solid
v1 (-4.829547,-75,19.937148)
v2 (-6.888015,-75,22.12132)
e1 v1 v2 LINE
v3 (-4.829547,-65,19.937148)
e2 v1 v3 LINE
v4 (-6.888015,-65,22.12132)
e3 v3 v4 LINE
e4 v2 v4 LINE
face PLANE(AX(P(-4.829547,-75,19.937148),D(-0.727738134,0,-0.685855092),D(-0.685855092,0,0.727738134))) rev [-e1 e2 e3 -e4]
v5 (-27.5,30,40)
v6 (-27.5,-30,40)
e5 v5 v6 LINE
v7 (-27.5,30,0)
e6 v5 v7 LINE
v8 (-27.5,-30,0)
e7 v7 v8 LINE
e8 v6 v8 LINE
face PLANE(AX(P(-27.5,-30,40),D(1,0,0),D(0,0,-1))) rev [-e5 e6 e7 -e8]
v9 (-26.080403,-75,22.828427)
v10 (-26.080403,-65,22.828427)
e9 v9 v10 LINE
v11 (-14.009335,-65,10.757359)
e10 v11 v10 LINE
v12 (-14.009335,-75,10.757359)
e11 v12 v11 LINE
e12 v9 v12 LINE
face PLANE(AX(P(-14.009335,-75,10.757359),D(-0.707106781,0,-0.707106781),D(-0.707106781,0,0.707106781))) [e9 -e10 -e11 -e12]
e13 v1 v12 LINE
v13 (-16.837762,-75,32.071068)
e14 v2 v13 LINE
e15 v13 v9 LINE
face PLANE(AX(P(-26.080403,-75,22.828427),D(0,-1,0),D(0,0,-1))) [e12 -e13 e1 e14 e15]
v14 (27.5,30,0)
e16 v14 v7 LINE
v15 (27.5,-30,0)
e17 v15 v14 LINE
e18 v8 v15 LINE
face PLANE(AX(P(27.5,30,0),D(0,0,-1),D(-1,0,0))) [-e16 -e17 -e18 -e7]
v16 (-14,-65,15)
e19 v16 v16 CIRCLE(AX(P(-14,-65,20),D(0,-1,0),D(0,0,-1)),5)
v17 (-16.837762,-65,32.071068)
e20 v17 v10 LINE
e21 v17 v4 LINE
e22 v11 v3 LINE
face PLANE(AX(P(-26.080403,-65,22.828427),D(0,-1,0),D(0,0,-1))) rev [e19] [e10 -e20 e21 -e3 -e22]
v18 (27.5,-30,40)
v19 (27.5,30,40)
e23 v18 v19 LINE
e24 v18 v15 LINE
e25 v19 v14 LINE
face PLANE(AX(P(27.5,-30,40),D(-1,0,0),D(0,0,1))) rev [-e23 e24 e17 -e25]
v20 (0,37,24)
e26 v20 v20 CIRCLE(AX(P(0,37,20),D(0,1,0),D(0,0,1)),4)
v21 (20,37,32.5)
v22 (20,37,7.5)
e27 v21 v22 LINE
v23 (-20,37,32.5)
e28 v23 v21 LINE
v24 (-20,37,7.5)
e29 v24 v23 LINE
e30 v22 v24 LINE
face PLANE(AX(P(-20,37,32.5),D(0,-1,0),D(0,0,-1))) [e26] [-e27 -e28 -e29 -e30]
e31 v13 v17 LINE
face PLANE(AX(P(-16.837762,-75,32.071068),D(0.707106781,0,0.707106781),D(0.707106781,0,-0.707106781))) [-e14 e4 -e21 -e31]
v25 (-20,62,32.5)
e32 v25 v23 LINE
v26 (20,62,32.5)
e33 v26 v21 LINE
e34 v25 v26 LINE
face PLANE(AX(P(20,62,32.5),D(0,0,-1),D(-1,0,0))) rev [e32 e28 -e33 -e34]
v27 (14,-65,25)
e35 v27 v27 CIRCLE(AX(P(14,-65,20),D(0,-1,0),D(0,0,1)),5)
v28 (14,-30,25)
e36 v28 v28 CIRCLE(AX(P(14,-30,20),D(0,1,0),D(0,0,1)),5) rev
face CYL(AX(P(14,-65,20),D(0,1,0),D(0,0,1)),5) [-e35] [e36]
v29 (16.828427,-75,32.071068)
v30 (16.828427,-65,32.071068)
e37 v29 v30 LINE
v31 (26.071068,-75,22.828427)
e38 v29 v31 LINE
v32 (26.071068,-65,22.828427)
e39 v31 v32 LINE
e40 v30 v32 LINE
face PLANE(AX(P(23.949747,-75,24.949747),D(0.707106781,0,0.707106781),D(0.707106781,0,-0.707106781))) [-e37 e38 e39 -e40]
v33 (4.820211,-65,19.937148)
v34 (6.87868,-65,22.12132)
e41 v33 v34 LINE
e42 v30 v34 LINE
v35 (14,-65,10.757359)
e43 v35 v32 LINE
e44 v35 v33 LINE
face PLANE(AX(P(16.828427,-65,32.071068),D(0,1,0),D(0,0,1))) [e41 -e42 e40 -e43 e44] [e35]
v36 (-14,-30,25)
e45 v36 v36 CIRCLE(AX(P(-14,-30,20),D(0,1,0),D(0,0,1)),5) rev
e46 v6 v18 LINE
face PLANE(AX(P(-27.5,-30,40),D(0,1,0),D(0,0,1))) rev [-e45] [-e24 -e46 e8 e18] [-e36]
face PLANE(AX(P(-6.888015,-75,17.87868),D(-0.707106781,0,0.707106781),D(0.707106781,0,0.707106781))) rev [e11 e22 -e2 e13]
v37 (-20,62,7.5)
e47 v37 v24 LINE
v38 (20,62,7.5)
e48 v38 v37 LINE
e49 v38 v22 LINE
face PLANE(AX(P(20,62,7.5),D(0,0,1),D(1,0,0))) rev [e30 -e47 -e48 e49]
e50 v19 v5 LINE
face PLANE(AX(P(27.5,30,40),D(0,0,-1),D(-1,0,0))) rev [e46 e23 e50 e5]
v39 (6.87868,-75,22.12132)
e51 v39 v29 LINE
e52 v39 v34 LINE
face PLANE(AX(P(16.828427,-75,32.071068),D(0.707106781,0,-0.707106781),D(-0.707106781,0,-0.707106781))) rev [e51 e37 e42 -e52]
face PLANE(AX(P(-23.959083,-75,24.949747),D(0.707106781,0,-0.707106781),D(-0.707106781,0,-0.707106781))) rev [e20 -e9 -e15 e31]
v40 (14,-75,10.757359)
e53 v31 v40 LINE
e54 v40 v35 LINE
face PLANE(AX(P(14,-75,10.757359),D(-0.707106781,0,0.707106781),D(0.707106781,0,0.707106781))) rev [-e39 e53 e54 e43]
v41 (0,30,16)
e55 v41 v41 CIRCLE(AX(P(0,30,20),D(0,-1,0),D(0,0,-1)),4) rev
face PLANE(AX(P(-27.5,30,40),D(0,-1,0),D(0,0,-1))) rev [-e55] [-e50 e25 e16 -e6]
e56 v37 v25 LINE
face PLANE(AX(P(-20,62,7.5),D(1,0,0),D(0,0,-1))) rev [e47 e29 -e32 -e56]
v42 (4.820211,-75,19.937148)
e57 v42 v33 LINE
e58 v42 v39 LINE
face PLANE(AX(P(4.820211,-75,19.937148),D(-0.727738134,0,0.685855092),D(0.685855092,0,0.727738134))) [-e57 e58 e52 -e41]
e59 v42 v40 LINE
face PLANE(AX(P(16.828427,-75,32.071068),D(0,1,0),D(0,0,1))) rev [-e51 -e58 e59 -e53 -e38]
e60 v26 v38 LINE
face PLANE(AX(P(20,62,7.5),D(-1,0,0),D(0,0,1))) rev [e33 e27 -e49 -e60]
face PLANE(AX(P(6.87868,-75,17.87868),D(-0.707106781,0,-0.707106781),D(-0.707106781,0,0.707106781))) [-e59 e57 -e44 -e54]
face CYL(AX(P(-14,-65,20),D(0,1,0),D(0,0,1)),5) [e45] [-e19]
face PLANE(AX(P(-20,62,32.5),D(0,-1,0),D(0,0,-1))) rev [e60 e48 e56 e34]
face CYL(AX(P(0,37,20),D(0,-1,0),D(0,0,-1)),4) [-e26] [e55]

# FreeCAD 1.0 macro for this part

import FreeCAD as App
import Part
import Sketcher

V = App.Vector
Q = App.Units.Quantity

doc = App.newDocument("Part")
body = doc.addObject("PartDesign::Body", "Body")

# Sketch on XY plane
sketch1 = body.newObject("Sketcher::SketchObject", "Sketch")
sketch1.AttachmentSupport = (doc.getObject("XY_Plane"), [""])
sketch1.MapMode = "FlatFace"
sketch1.addGeometry(Part.LineSegment(V(-28, 30, 0), V(-28, -30, 0)), False)
sketch1.addGeometry(Part.LineSegment(V(-28, -30, 0), V(28, -30, 0)), False)
sketch1.addGeometry(Part.LineSegment(V(28, -30, 0), V(28, 30, 0)), False)
sketch1.addGeometry(Part.LineSegment(V(28, 30, 0), V(-28, 30, 0)), False)
sketch1.addConstraint(Sketcher.Constraint("Coincident", 0, 2, 1, 1))
sketch1.addConstraint(Sketcher.Constraint("Coincident", 1, 2, 2, 1))
sketch1.addConstraint(Sketcher.Constraint("Coincident", 2, 2, 3, 1))
sketch1.addConstraint(Sketcher.Constraint("Coincident", 3, 2, 0, 1))
sketch1.addConstraint(Sketcher.Constraint("Vertical", 0))
sketch1.addConstraint(Sketcher.Constraint("Horizontal", 1))
sketch1.addConstraint(Sketcher.Constraint("Vertical", 2))
sketch1.addConstraint(Sketcher.Constraint("Horizontal", 3))
sketch1.addConstraint(Sketcher.Constraint("Symmetric", 0, 2, 2, 2, -1, 1))
sketch1.addConstraint(Sketcher.Constraint("DistanceX", 1, 1, 1, 2, Q("55 mm")))
sketch1.addConstraint(Sketcher.Constraint("DistanceY", 0, 2, 0, 1, Q("60 mm")))
pad1 = body.newObject("PartDesign::Pad", "Pad")
pad1.Profile = sketch1
pad1.Length = 40

# Sketch on XZ plane
sketch2 = body.newObject("Sketcher::SketchObject", "Sketch001")
sketch2.AttachmentSupport = (doc.getObject("XZ_Plane"), [""])
sketch2.MapMode = "FlatFace"
sketch2.AttachmentOffset = App.Placement(V(0, 0, -30), App.Rotation())
sketch2.addGeometry(Part.Circle(V(0, 20, 0), V(0, 0, 1), 4), False)
sketch2.addConstraint(Sketcher.Constraint("PointOnObject", 0, 3, -2))
sketch2.addConstraint(Sketcher.Constraint("Diameter", 0, Q("8 mm")))
sketch2.addConstraint(Sketcher.Constraint("DistanceY", -1, 1, 0, 3, Q("20 mm")))
pad2 = body.newObject("PartDesign::Pad", "Pad001")
pad2.Profile = sketch2
pad2.Length = 7
pad2.Reversed = True

# Sketch on XZ plane
sketch3 = body.newObject("Sketcher::SketchObject", "Sketch002")
sketch3.AttachmentSupport = (doc.getObject("XZ_Plane"), [""])
sketch3.MapMode = "FlatFace"
sketch3.AttachmentOffset = App.Placement(V(0, 0, -37), App.Rotation())
sketch3.addGeometry(Part.LineSegment(V(-20, 8, 0), V(-20, 32, 0)), False)
sketch3.addGeometry(Part.LineSegment(V(-20, 32, 0), V(20, 32, 0)), False)
sketch3.addGeometry(Part.LineSegment(V(20, 32, 0), V(20, 8, 0)), False)
sketch3.addGeometry(Part.LineSegment(V(20, 8, 0), V(-20, 8, 0)), False)
sketch3.addConstraint(Sketcher.Constraint("Coincident", 0, 2, 1, 1))
sketch3.addConstraint(Sketcher.Constraint("Coincident", 1, 2, 2, 1))
sketch3.addConstraint(Sketcher.Constraint("Coincident", 2, 2, 3, 1))
sketch3.addConstraint(Sketcher.Constraint("Coincident", 3, 2, 0, 1))
sketch3.addConstraint(Sketcher.Constraint("Vertical", 0))
sketch3.addConstraint(Sketcher.Constraint("Horizontal", 1))
sketch3.addConstraint(Sketcher.Constraint("Vertical", 2))
sketch3.addConstraint(Sketcher.Constraint("Horizontal", 3))
sketch3.addConstraint(Sketcher.Constraint("DistanceX", 1, 1, 1, 2, Q("40 mm")))
sketch3.addConstraint(Sketcher.Constraint("DistanceY", 0, 1, 0, 2, Q("25 mm")))
sketch3.addConstraint(Sketcher.Constraint("DistanceX", 0, 2, -1, 1, Q("20 mm")))
sketch3.addConstraint(Sketcher.Constraint("DistanceY", -1, 1, 0, 2, Q("32.5 mm")))
pad3 = body.newObject("PartDesign::Pad", "Pad002")
pad3.Profile = sketch3
pad3.Length = 25
pad3.Reversed = True

# Sketch on XZ plane
sketch4 = body.newObject("Sketcher::SketchObject", "Sketch003")
sketch4.AttachmentSupport = (doc.getObject("XZ_Plane"), [""])
sketch4.MapMode = "FlatFace"
sketch4.AttachmentOffset = App.Placement(V(0, 0, 30), App.Rotation())
sketch4.addGeometry(Part.Circle(V(-14, 20, 0), V(0, 0, 1), 5), False)
sketch4.addGeometry(Part.Circle(V(14, 20, 0), V(0, 0, 1), 5), False)
sketch4.addConstraint(Sketcher.Constraint("Equal", 0, 1))
sketch4.addConstraint(Sketcher.Constraint("Symmetric", 0, 3, 1, 3, -2))
sketch4.addConstraint(Sketcher.Constraint("Diameter", 0, Q("10 mm")))
sketch4.addConstraint(Sketcher.Constraint("DistanceX", 0, 3, -1, 1, Q("14 mm")))
sketch4.addConstraint(Sketcher.Constraint("DistanceY", -1, 1, 0, 3, Q("20 mm")))
pad4 = body.newObject("PartDesign::Pad", "Pad003")
pad4.Profile = sketch4
pad4.Length = 35

# Sketch on XZ plane
sketch5 = body.newObject("Sketcher::SketchObject", "Sketch004")
sketch5.AttachmentSupport = (doc.getObject("XZ_Plane"), [""])
sketch5.MapMode = "FlatFace"
sketch5.AttachmentOffset = App.Placement(V(0, 0, 65), App.Rotation())
sketch5.addGeometry(Part.LineSegment(V(-11.9, 12.9, 0), V(-6.9, 17.9, 0)), False)
sketch5.addGeometry(Part.LineSegment(V(-6.9, 17.9, 0), V(-4.8, 19.9, 0)), False)
sketch5.addGeometry(Part.LineSegment(V(-4.8, 19.9, 0), V(-6.9, 22.1, 0)), False)
sketch5.addGeometry(Part.LineSegment(V(-6.9, 22.1, 0), V(-16.8, 32.1, 0)), False)
sketch5.addGeometry(Part.LineSegment(V(-16.8, 32.1, 0), V(-26.1, 22.8, 0)), False)
sketch5.addGeometry(Part.LineSegment(V(-26.1, 22.8, 0), V(-21.1, 17.9, 0)), False)
sketch5.addGeometry(Part.LineSegment(V(-21.1, 17.9, 0), V(-14, 10.8, 0)), False)
sketch5.addGeometry(Part.LineSegment(V(-14, 10.8, 0), V(-11.9, 12.9, 0)), False)
sketch5.addGeometry(Part.LineSegment(V(23.9, 24.9, 0), V(18.9, 29.9, 0)), False)
sketch5.addGeometry(Part.LineSegment(V(18.9, 29.9, 0), V(16.8, 32.1, 0)), False)
sketch5.addGeometry(Part.LineSegment(V(16.8, 32.1, 0), V(11.9, 27.1, 0)), False)
sketch5.addGeometry(Part.LineSegment(V(11.9, 27.1, 0), V(6.9, 22.1, 0)), False)
sketch5.addGeometry(Part.LineSegment(V(6.9, 22.1, 0), V(4.8, 19.9, 0)), False)
sketch5.addGeometry(Part.LineSegment(V(4.8, 19.9, 0), V(6.9, 17.9, 0)), False)
sketch5.addGeometry(Part.LineSegment(V(6.9, 17.9, 0), V(11.9, 12.9, 0)), False)
sketch5.addGeometry(Part.LineSegment(V(11.9, 12.9, 0), V(14, 10.8, 0)), False)
sketch5.addGeometry(Part.LineSegment(V(14, 10.8, 0), V(16.1, 12.9, 0)), False)
sketch5.addGeometry(Part.LineSegment(V(16.1, 12.9, 0), V(21.1, 17.9, 0)), False)
sketch5.addGeometry(Part.LineSegment(V(21.1, 17.9, 0), V(26.1, 22.8, 0)), False)
sketch5.addGeometry(Part.LineSegment(V(26.1, 22.8, 0), V(23.9, 24.9, 0)), False)
sketch5.addConstraint(Sketcher.Constraint("Coincident", 0, 2, 1, 1))
sketch5.addConstraint(Sketcher.Constraint("Coincident", 1, 2, 2, 1))
sketch5.addConstraint(Sketcher.Constraint("Coincident", 2, 2, 3, 1))
sketch5.addConstraint(Sketcher.Constraint("Coincident", 3, 2, 4, 1))
sketch5.addConstraint(Sketcher.Constraint("Coincident", 4, 2, 5, 1))
sketch5.addConstraint(Sketcher.Constraint("Coincident", 5, 2, 6, 1))
sketch5.addConstraint(Sketcher.Constraint("Coincident", 6, 2, 7, 1))
sketch5.addConstraint(Sketcher.Constraint("Coincident", 7, 2, 0, 1))
sketch5.addConstraint(Sketcher.Constraint("Coincident", 8, 2, 9, 1))
sketch5.addConstraint(Sketcher.Constraint("Coincident", 9, 2, 10, 1))
sketch5.addConstraint(Sketcher.Constraint("Coincident", 10, 2, 11, 1))
sketch5.addConstraint(Sketcher.Constraint("Coincident", 11, 2, 12, 1))
sketch5.addConstraint(Sketcher.Constraint("Coincident", 12, 2, 13, 1))
sketch5.addConstraint(Sketcher.Constraint("Coincident", 13, 2, 14, 1))
sketch5.addConstraint(Sketcher.Constraint("Coincident", 14, 2, 15, 1))
sketch5.addConstraint(Sketcher.Constraint("Coincident", 15, 2, 16, 1))
sketch5.addConstraint(Sketcher.Constraint("Coincident", 16, 2, 17, 1))
sketch5.addConstraint(Sketcher.Constraint("Coincident", 17, 2, 18, 1))
sketch5.addConstraint(Sketcher.Constraint("Coincident", 18, 2, 19, 1))
sketch5.addConstraint(Sketcher.Constraint("Coincident", 19, 2, 8, 1))
sketch5.addConstraint(Sketcher.Constraint("Parallel", 0, 1))
sketch5.addConstraint(Sketcher.Constraint("Perpendicular", 1, 3))
sketch5.addConstraint(Sketcher.Constraint("Perpendicular", 3, 4))
sketch5.addConstraint(Sketcher.Constraint("Perpendicular", 4, 5))
sketch5.addConstraint(Sketcher.Constraint("Parallel", 5, 6))
sketch5.addConstraint(Sketcher.Constraint("Perpendicular", 6, 7))
sketch5.addConstraint(Sketcher.Constraint("Perpendicular", 7, 8))
sketch5.addConstraint(Sketcher.Constraint("Parallel", 8, 9))
sketch5.addConstraint(Sketcher.Constraint("Perpendicular", 9, 10))
sketch5.addConstraint(Sketcher.Constraint("Parallel", 10, 11))
sketch5.addConstraint(Sketcher.Constraint("Perpendicular", 11, 13))
sketch5.addConstraint(Sketcher.Constraint("Parallel", 13, 14))
sketch5.addConstraint(Sketcher.Constraint("Parallel", 14, 15))
sketch5.addConstraint(Sketcher.Constraint("Perpendicular", 15, 16))
sketch5.addConstraint(Sketcher.Constraint("Parallel", 16, 17))
sketch5.addConstraint(Sketcher.Constraint("Parallel", 17, 18))
sketch5.addConstraint(Sketcher.Constraint("Perpendicular", 18, 19))
sketch5.addConstraint(Sketcher.Constraint("Horizontal", 0, 2, 5, 2))
sketch5.addConstraint(Sketcher.Constraint("Horizontal", 3, 2, 9, 2))
sketch5.addConstraint(Sketcher.Constraint("Horizontal", 2, 2, 11, 2))
sketch5.addConstraint(Sketcher.Constraint("Horizontal", 1, 2, 12, 2))
sketch5.addConstraint(Sketcher.Constraint("Horizontal", 5, 2, 13, 2))
sketch5.addConstraint(Sketcher.Constraint("Horizontal", 7, 2, 14, 2))
sketch5.addConstraint(Sketcher.Constraint("Horizontal", 6, 2, 15, 2))
sketch5.addConstraint(Sketcher.Constraint("Horizontal", 14, 2, 16, 2))
sketch5.addConstraint(Sketcher.Constraint("Horizontal", 13, 2, 17, 2))
sketch5.addConstraint(Sketcher.Constraint("Horizontal", 4, 2, 18, 2))
sketch5.addConstraint(Sketcher.Constraint("Vertical", 0, 2, 2, 2))
sketch5.addConstraint(Sketcher.Constraint("Vertical", 11, 2, 13, 2))
sketch5.addConstraint(Sketcher.Constraint("Vertical", 10, 2, 14, 2))
sketch5.addConstraint(Sketcher.Constraint("Equal", 0, 8))
sketch5.addConstraint(Sketcher.Constraint("Equal", 7, 9))
sketch5.addConstraint(Sketcher.Constraint("Equal", 5, 10))
sketch5.addConstraint(Sketcher.Constraint("Distance", 5, Q("7 mm")))
sketch5.addConstraint(Sketcher.Constraint("Distance", 7, Q("3 mm")))
sketch5.addConstraint(Sketcher.Constraint("DistanceX", -1, 1, 15, 2, Q("14 mm")))
sketch5.addConstraint(Sketcher.Constraint("DistanceX", 7, 2, 0, 2, Q("5 mm")))
sketch5.addConstraint(Sketcher.Constraint("DistanceY", 1, 2, 8, 2, Q("10.0126 mm")))
sketch5.addConstraint(Sketcher.Constraint("DistanceY", -1, 1, 0, 2, Q("17.87868 mm")))
sketch5.addConstraint(Sketcher.Constraint("DistanceX", 3, 2, 8, 2, Q("35.78751 mm")))
pad5 = body.newObject("PartDesign::Pad", "Pad004")
pad5.Profile = sketch5
pad5.Length = 10

doc.recompute()
